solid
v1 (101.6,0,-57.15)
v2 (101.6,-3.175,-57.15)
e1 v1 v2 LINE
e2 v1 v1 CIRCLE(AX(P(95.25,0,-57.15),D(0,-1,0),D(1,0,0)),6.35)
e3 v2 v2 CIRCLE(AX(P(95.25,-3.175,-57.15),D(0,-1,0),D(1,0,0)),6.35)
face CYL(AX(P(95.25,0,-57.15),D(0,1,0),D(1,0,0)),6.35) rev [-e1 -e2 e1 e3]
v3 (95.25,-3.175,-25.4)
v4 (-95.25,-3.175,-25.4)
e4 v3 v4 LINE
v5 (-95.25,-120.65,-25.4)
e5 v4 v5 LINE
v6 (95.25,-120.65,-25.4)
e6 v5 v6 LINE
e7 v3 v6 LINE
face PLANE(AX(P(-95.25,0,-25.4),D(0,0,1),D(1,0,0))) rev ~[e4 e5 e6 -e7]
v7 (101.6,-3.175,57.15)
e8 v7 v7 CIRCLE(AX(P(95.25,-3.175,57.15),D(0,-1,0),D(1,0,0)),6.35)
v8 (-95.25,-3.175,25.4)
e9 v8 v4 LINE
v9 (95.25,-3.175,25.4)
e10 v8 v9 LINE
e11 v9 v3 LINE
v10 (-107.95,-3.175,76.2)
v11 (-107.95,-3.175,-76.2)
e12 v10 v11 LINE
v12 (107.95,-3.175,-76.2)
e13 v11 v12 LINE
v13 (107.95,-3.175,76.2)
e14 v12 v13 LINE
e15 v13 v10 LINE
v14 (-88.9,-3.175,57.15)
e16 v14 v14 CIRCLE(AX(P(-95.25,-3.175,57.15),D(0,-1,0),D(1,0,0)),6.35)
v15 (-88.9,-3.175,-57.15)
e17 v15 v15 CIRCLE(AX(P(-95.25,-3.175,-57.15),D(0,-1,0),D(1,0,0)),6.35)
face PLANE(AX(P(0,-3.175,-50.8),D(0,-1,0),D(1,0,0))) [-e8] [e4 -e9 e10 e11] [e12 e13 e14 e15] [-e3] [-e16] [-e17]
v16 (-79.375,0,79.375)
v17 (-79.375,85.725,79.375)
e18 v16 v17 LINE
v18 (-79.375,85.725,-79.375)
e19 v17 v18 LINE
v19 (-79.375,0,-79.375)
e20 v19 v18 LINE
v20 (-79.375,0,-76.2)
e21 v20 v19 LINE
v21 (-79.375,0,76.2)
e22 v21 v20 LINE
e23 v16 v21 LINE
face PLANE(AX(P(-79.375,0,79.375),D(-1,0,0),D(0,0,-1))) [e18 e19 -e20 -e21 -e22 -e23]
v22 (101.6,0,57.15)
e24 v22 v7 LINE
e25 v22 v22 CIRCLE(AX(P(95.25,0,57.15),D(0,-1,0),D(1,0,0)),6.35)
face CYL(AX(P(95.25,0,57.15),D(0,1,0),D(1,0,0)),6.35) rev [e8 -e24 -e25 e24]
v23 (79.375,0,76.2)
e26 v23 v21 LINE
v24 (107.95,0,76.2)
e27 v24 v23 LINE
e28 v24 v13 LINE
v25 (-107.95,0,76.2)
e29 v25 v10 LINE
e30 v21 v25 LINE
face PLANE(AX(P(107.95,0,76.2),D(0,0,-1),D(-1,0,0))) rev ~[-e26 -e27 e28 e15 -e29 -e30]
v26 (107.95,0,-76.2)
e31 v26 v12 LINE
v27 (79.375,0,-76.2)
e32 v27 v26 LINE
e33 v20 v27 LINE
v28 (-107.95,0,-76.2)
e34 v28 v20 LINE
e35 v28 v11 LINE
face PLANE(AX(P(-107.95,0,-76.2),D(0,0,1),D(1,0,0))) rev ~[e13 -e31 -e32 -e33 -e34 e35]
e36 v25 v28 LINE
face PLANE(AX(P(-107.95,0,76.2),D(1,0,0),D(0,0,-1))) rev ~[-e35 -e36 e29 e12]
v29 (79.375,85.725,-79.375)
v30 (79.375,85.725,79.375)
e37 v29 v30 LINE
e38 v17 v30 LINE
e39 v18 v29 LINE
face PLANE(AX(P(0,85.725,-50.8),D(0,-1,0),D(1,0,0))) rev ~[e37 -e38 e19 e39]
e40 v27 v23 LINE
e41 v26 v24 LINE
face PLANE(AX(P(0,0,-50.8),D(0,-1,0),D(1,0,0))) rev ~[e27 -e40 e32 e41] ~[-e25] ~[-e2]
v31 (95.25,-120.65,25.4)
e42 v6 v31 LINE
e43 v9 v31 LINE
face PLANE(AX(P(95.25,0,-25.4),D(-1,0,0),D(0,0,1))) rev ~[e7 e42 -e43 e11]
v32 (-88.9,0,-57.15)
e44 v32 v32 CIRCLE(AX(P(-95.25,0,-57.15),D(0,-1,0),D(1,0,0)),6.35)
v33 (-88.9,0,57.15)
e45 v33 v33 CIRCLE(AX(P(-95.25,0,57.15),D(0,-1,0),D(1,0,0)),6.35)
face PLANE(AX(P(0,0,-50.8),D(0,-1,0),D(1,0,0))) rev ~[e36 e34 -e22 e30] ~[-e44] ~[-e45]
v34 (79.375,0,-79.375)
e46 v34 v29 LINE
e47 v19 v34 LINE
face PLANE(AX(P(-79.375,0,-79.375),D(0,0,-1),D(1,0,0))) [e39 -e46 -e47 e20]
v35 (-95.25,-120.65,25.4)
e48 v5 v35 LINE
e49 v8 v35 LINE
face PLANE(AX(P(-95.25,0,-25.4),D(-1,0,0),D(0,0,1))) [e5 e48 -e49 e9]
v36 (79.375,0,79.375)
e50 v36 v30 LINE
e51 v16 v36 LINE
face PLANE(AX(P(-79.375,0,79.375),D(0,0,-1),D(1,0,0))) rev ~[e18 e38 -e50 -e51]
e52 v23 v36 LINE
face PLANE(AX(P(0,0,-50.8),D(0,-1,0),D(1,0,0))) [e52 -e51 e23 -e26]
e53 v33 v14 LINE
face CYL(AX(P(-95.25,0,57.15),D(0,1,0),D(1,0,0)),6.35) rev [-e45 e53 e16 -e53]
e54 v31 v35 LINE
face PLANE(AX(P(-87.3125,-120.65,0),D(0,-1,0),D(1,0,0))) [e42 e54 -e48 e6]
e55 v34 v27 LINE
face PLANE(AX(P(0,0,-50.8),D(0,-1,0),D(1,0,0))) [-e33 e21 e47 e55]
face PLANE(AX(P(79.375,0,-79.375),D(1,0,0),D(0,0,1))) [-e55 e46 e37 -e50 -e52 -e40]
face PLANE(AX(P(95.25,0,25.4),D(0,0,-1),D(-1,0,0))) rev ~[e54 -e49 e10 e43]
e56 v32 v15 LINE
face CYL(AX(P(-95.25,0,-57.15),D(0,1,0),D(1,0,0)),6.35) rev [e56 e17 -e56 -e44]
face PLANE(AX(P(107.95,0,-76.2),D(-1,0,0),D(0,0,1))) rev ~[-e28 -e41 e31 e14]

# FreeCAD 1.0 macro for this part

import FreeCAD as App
import Part
import Sketcher

V = App.Vector
Q = App.Units.Quantity

doc = App.newDocument("Part")
params = doc.addObject("Spreadsheet::Sheet", "Params")
for row, (alias, value) in enumerate([
    ("sketch1_diameter", "0.5 in"),
    ("sketch1_height", "6 in"),
    ("sketch1_width", "8.5 in"),
    ("pad1_length", "0.125 in"),
    ("sketch2_width", "6.25 in"),
    ("pad2_length", "3.375 in"),
    ("sketch3_height", "2 in"),
    ("sketch3_width", "7.5 in"),
    ("pad3_length", "4.75 in"),
], start=1):
    params.set(f"A{row}", alias)
    params.set(f"B{row}", "=" + value)
    params.setAlias(f"B{row}", alias)

body = doc.addObject("PartDesign::Body", "Body")

# Sketch on XZ plane
sketch1 = body.newObject("Sketcher::SketchObject", "Sketch")
sketch1.AttachmentSupport = (doc.getObject("XZ_Plane"), [""])
sketch1.MapMode = "FlatFace"
sketch1.addGeometry([
    Part.LineSegment(V(108, -76, 0), V(108, 76, 0)),  # 0
    Part.LineSegment(V(108, 76, 0), V(-108, 76, 0)),  # 1
    Part.LineSegment(V(-108, 76, 0), V(-108, -76, 0)),  # 2
    Part.LineSegment(V(-108, -76, 0), V(108, -76, 0)),  # 3
    Part.Circle(V(-95, -57, 0), V(0, 0, 1), 6),  # 4
    Part.Circle(V(95, -57, 0), V(0, 0, 1), 6),  # 5
    Part.Circle(V(-95, 57, 0), V(0, 0, 1), 6),  # 6
    Part.Circle(V(95, 57, 0), V(0, 0, 1), 6),  # 7
], False)
sketch1.addConstraint([
    Sketcher.Constraint("Coincident", 0, 2, 1, 1),
    Sketcher.Constraint("Coincident", 1, 2, 2, 1),
    Sketcher.Constraint("Coincident", 2, 2, 3, 1),
    Sketcher.Constraint("Coincident", 3, 2, 0, 1),
    Sketcher.Constraint("Vertical", 0),
    Sketcher.Constraint("Horizontal", 1),
    Sketcher.Constraint("Vertical", 2),
    Sketcher.Constraint("Horizontal", 3),
    Sketcher.Constraint("Equal", 4, 5),
    Sketcher.Constraint("Equal", 5, 6),
    Sketcher.Constraint("Equal", 6, 7),
    Sketcher.Constraint("Symmetric", 5, 3, 6, 3, -1, 1),
    Sketcher.Constraint("Symmetric", 4, 3, 7, 3, -1, 1),
    Sketcher.Constraint("Symmetric", 0, 2, 2, 2, -1, 1),
    Sketcher.Constraint("Symmetric", 4, 3, 5, 3, -2),
    Sketcher.Constraint("Diameter", 4, Q("0.5 in")),
    Sketcher.Constraint("DistanceY", 0, 1, 0, 2, Q("6 in")),
    Sketcher.Constraint("DistanceX", 1, 2, 1, 1, Q("8.5 in")),
    Sketcher.Constraint("DistanceX", 6, 3, 0, 2, Q("8 in")),
    Sketcher.Constraint("DistanceY", 4, 3, 6, 3, Q("4.5 in")),
])
sketch1.setExpression("Constraints[15]", "Params.sketch1_diameter")
sketch1.setExpression("Constraints[16]", "Params.sketch1_height")
sketch1.setExpression("Constraints[17]", "Params.sketch1_width")
pad1 = body.newObject("PartDesign::Pad", "Pad")
pad1.Profile = sketch1
pad1.setExpression("Length", "Params.pad1_length")

# Sketch on XZ plane
sketch2 = body.newObject("Sketcher::SketchObject", "Sketch001")
sketch2.AttachmentSupport = (doc.getObject("XZ_Plane"), [""])
sketch2.MapMode = "FlatFace"
sketch2.addGeometry([
    Part.LineSegment(V(79, 79, 0), V(-79, 79, 0)),
    Part.LineSegment(V(-79, 79, 0), V(-79, -79, 0)),
    Part.LineSegment(V(-79, -79, 0), V(79, -79, 0)),
    Part.LineSegment(V(79, -79, 0), V(79, 79, 0)),
], False)
sketch2.addConstraint([
    Sketcher.Constraint("Coincident", 0, 2, 1, 1),
    Sketcher.Constraint("Coincident", 1, 2, 2, 1),
    Sketcher.Constraint("Coincident", 2, 2, 3, 1),
    Sketcher.Constraint("Coincident", 3, 2, 0, 1),
    Sketcher.Constraint("Horizontal", 0),
    Sketcher.Constraint("Vertical", 1),
    Sketcher.Constraint("Horizontal", 2),
    Sketcher.Constraint("Vertical", 3),
    Sketcher.Constraint("Symmetric", 0, 2, 2, 2, -1, 1),
    Sketcher.Constraint("Equal", 2, 1),
    Sketcher.Constraint("DistanceX", 0, 2, 0, 1, Q("6.25 in")),
])
sketch2.setExpression("Constraints[10]", "Params.sketch2_width")
pad2 = body.newObject("PartDesign::Pad", "Pad001")
pad2.Profile = sketch2
pad2.setExpression("Length", "Params.pad2_length")
pad2.Reversed = True

# Sketch on XZ plane
sketch3 = body.newObject("Sketcher::SketchObject", "Sketch002")
sketch3.AttachmentSupport = (doc.getObject("XZ_Plane"), [""])
sketch3.MapMode = "FlatFace"
sketch3.addGeometry([
    Part.LineSegment(V(-95, 25, 0), V(-95, -25, 0)),
    Part.LineSegment(V(-95, -25, 0), V(95, -25, 0)),
    Part.LineSegment(V(95, -25, 0), V(95, 25, 0)),
    Part.LineSegment(V(95, 25, 0), V(-95, 25, 0)),
], False)
sketch3.addConstraint([
    Sketcher.Constraint("Coincident", 0, 2, 1, 1),
    Sketcher.Constraint("Coincident", 1, 2, 2, 1),
    Sketcher.Constraint("Coincident", 2, 2, 3, 1),
    Sketcher.Constraint("Coincident", 3, 2, 0, 1),
    Sketcher.Constraint("Vertical", 0),
    Sketcher.Constraint("Horizontal", 1),
    Sketcher.Constraint("Vertical", 2),
    Sketcher.Constraint("Horizontal", 3),
    Sketcher.Constraint("Symmetric", 0, 2, 2, 2, -1, 1),
    Sketcher.Constraint("DistanceY", 0, 2, 0, 1, Q("2 in")),
    Sketcher.Constraint("DistanceX", 1, 1, 1, 2, Q("7.5 in")),
])
sketch3.setExpression("Constraints[9]", "Params.sketch3_height")
sketch3.setExpression("Constraints[10]", "Params.sketch3_width")
pad3 = body.newObject("PartDesign::Pad", "Pad002")
pad3.Profile = sketch3
pad3.setExpression("Length", "Params.pad3_length")

doc.recompute()
